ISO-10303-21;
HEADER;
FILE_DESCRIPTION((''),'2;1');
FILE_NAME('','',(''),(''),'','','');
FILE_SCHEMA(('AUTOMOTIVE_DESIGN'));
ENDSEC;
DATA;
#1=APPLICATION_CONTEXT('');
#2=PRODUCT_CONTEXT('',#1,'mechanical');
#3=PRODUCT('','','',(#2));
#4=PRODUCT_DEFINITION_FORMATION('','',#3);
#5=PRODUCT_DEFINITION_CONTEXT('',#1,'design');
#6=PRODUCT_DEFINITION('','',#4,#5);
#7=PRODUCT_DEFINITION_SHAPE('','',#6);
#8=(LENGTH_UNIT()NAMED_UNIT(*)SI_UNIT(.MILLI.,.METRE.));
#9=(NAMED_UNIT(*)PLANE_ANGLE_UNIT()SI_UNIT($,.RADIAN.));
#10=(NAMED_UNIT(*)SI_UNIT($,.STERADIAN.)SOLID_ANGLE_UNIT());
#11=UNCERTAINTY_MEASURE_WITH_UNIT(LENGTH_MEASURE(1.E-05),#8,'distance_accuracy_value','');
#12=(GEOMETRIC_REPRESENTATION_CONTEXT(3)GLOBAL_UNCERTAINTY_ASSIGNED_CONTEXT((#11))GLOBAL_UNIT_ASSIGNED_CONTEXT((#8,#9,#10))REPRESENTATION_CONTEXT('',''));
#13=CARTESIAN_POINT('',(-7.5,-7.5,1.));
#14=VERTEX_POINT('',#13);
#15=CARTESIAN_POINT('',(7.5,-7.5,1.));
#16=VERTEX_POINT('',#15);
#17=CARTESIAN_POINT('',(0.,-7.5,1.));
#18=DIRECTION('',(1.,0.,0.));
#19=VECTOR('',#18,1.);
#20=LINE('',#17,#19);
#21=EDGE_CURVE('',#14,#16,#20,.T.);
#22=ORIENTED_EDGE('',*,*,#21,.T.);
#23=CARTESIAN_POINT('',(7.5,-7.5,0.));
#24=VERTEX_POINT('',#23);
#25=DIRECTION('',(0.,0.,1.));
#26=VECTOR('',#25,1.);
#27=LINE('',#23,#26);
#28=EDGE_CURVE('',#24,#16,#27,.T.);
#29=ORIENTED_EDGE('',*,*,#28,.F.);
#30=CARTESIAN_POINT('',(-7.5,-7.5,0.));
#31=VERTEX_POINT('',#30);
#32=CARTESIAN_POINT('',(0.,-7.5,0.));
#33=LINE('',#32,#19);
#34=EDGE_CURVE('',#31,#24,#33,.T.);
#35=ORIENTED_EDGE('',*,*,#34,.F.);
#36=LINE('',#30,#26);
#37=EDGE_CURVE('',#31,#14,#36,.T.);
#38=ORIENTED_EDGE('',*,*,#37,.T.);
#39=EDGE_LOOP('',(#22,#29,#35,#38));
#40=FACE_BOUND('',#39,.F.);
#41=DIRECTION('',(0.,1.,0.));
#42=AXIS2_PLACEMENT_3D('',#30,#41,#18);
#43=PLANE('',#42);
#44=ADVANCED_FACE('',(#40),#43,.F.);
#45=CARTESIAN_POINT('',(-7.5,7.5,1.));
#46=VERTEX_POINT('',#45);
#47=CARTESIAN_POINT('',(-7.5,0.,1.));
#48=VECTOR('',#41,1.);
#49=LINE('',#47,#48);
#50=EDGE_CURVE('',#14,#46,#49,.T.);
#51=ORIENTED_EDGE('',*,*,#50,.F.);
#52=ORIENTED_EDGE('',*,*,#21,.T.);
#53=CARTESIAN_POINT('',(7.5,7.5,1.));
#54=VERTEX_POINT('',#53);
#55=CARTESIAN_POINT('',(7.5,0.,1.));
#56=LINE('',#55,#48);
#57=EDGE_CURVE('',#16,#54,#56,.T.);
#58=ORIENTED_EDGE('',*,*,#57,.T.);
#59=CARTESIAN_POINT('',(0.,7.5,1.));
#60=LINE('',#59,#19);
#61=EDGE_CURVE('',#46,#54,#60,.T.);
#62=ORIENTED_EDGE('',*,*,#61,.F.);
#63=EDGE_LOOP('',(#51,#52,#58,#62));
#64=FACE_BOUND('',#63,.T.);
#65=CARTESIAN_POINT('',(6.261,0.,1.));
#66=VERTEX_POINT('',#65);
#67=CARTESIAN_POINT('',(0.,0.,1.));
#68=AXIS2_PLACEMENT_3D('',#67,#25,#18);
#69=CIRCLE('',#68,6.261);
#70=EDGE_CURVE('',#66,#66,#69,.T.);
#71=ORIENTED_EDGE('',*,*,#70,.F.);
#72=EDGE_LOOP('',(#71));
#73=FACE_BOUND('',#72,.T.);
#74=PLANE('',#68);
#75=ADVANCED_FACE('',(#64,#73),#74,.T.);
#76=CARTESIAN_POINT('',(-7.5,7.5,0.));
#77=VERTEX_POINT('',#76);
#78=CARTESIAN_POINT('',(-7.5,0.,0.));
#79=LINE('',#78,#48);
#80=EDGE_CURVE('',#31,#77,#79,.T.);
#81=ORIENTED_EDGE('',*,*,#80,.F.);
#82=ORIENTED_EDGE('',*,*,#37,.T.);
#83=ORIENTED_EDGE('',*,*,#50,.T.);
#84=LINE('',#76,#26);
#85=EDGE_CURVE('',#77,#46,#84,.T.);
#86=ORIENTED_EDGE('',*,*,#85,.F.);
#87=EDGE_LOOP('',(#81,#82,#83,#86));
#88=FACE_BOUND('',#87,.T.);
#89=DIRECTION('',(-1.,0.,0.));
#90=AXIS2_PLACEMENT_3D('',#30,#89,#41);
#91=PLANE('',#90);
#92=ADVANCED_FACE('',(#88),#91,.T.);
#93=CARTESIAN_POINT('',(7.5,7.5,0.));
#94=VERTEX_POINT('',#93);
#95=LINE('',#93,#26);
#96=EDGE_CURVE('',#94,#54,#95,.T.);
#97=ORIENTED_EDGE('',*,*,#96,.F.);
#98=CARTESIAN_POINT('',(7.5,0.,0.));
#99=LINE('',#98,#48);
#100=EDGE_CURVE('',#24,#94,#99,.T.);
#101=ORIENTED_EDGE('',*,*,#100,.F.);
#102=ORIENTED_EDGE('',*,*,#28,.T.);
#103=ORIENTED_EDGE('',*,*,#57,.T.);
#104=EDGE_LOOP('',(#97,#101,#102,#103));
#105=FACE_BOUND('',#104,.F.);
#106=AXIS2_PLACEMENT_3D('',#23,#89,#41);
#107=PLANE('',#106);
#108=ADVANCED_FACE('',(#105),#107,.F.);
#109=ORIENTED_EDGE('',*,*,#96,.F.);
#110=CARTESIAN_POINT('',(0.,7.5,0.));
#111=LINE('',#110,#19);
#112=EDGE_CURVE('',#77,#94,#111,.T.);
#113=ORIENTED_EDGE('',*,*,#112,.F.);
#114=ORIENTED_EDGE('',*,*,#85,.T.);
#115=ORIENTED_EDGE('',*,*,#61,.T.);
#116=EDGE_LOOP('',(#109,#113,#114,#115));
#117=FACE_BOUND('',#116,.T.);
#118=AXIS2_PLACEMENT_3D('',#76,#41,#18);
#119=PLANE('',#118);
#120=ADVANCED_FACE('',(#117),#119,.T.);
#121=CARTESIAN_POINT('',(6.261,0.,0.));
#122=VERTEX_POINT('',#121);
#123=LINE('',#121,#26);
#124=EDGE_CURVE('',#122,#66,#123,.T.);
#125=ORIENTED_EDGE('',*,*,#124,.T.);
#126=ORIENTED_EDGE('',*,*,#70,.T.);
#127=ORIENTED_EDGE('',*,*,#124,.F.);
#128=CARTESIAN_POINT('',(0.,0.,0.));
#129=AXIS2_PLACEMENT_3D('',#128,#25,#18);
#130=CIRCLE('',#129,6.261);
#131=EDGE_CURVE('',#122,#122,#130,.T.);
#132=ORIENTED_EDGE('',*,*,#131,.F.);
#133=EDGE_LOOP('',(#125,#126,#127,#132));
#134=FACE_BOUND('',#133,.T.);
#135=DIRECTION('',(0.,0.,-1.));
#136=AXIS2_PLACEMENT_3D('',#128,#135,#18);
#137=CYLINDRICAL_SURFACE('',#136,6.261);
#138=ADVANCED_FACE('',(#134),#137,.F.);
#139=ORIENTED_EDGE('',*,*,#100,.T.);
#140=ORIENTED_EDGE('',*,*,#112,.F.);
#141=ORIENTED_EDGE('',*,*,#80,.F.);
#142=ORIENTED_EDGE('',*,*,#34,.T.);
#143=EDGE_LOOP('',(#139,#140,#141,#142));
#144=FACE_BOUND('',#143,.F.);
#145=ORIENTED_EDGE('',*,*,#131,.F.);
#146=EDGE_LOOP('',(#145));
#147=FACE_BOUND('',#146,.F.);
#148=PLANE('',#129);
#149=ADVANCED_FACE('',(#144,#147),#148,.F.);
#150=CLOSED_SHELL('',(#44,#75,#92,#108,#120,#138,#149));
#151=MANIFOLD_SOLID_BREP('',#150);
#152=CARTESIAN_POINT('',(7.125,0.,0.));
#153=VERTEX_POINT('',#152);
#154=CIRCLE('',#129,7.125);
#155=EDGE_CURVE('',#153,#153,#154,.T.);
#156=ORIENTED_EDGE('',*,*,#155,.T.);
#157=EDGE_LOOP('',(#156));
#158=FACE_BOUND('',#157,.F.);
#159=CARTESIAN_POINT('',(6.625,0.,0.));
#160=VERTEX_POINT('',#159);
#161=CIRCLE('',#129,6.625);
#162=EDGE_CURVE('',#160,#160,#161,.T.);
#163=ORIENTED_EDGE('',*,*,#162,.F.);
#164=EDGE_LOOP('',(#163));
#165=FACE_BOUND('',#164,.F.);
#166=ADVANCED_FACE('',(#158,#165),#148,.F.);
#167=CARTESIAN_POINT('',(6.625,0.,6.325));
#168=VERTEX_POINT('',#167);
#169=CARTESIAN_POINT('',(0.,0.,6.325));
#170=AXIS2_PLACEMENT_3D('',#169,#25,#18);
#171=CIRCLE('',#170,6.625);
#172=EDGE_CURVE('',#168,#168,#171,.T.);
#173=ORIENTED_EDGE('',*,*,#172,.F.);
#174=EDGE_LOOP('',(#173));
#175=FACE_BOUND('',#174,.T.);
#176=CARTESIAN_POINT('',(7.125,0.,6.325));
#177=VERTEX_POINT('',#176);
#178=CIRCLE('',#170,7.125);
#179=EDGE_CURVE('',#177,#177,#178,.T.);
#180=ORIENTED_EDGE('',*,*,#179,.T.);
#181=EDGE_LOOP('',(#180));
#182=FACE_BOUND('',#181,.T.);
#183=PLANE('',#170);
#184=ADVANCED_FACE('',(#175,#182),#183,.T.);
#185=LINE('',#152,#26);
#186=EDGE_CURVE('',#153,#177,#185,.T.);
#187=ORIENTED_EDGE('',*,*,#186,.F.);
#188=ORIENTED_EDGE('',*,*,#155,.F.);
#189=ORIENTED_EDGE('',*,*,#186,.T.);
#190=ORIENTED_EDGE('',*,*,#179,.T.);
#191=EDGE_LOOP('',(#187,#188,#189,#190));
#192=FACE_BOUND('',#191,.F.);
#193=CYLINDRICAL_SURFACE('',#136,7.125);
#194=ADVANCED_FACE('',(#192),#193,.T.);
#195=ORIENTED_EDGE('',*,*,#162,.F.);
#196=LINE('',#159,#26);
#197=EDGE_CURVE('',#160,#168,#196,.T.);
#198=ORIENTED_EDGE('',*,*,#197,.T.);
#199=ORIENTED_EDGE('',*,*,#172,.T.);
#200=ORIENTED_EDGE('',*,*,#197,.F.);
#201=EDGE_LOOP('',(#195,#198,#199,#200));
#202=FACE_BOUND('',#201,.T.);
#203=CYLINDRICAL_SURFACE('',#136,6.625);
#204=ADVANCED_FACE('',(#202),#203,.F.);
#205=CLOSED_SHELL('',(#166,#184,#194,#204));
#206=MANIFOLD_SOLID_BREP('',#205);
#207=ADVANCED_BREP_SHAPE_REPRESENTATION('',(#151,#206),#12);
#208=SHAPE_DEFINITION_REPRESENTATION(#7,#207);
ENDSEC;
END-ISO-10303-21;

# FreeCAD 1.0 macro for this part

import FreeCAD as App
import Part
import Sketcher
Q = App.Units.Quantity

doc = App.newDocument("Part")
body = doc.addObject("PartDesign::Body", "Body")

# Sketch on XY plane
sketch1 = body.newObject("Sketcher::SketchObject", "Sketch")
sketch1.AttachmentSupport = (doc.getObject("XY_Plane"), [""])
sketch1.MapMode = "FlatFace"
sketch1.addGeometry([
    Part.LineSegment(App.Vector(-8, 8, 0), App.Vector(-8, -8, 0)),  # 0
    Part.LineSegment(App.Vector(-8, -8, 0), App.Vector(8, -8, 0)),  # 1
    Part.LineSegment(App.Vector(8, -8, 0), App.Vector(8, 8, 0)),  # 2
    Part.LineSegment(App.Vector(8, 8, 0), App.Vector(-8, 8, 0)),  # 3
    Part.Circle(App.Vector(0, 0, 0), App.Vector(0, 0, 1), 6),  # 4
], False)
sketch1.addConstraint([
    Sketcher.Constraint("Coincident", 0, 2, 1, 1),
    Sketcher.Constraint("Coincident", 1, 2, 2, 1),
    Sketcher.Constraint("Coincident", 2, 2, 3, 1),
    Sketcher.Constraint("Coincident", 3, 2, 0, 1),
    Sketcher.Constraint("Vertical", 0),
    Sketcher.Constraint("Horizontal", 1),
    Sketcher.Constraint("Vertical", 2),
    Sketcher.Constraint("Horizontal", 3),
    Sketcher.Constraint("Coincident", 4, 3, -1, 1),
    Sketcher.Constraint("Symmetric", 0, 2, 2, 2, -1, 1),
    Sketcher.Constraint("Equal", 3, 0),
    Sketcher.Constraint("DistanceX", 1, 1, 1, 2, Q("15 mm")),
    Sketcher.Constraint("Diameter", 4, Q("12.522 mm")),
])
pad1 = body.newObject("PartDesign::Pad", "Pad")
pad1.Profile = sketch1
pad1.Length = 1
body2 = doc.addObject("PartDesign::Body", "Body001")

# Sketch on XY plane
sketch2 = body2.newObject("Sketcher::SketchObject", "Sketch001")
sketch2.AttachmentSupport = (doc.getObject("XY_Plane001"), [""])
sketch2.MapMode = "FlatFace"
sketch2.addGeometry([
    Part.Circle(App.Vector(0, 0, 0), App.Vector(0, 0, 1), 7),
    Part.Circle(App.Vector(0, 0, 0), App.Vector(0, 0, 1), 7),
], False)
sketch2.addConstraint([
    Sketcher.Constraint("Coincident", 0, 3, -1, 1),
    Sketcher.Constraint("Coincident", 1, 3, -1, 1),
    Sketcher.Constraint("Diameter", 0, Q("14.25 mm")),
    Sketcher.Constraint("Diameter", 1, Q("13.25 mm")),
])
pad2 = body2.newObject("PartDesign::Pad", "Pad001")
pad2.Profile = sketch2
pad2.Length = 6.325

doc.recompute()
